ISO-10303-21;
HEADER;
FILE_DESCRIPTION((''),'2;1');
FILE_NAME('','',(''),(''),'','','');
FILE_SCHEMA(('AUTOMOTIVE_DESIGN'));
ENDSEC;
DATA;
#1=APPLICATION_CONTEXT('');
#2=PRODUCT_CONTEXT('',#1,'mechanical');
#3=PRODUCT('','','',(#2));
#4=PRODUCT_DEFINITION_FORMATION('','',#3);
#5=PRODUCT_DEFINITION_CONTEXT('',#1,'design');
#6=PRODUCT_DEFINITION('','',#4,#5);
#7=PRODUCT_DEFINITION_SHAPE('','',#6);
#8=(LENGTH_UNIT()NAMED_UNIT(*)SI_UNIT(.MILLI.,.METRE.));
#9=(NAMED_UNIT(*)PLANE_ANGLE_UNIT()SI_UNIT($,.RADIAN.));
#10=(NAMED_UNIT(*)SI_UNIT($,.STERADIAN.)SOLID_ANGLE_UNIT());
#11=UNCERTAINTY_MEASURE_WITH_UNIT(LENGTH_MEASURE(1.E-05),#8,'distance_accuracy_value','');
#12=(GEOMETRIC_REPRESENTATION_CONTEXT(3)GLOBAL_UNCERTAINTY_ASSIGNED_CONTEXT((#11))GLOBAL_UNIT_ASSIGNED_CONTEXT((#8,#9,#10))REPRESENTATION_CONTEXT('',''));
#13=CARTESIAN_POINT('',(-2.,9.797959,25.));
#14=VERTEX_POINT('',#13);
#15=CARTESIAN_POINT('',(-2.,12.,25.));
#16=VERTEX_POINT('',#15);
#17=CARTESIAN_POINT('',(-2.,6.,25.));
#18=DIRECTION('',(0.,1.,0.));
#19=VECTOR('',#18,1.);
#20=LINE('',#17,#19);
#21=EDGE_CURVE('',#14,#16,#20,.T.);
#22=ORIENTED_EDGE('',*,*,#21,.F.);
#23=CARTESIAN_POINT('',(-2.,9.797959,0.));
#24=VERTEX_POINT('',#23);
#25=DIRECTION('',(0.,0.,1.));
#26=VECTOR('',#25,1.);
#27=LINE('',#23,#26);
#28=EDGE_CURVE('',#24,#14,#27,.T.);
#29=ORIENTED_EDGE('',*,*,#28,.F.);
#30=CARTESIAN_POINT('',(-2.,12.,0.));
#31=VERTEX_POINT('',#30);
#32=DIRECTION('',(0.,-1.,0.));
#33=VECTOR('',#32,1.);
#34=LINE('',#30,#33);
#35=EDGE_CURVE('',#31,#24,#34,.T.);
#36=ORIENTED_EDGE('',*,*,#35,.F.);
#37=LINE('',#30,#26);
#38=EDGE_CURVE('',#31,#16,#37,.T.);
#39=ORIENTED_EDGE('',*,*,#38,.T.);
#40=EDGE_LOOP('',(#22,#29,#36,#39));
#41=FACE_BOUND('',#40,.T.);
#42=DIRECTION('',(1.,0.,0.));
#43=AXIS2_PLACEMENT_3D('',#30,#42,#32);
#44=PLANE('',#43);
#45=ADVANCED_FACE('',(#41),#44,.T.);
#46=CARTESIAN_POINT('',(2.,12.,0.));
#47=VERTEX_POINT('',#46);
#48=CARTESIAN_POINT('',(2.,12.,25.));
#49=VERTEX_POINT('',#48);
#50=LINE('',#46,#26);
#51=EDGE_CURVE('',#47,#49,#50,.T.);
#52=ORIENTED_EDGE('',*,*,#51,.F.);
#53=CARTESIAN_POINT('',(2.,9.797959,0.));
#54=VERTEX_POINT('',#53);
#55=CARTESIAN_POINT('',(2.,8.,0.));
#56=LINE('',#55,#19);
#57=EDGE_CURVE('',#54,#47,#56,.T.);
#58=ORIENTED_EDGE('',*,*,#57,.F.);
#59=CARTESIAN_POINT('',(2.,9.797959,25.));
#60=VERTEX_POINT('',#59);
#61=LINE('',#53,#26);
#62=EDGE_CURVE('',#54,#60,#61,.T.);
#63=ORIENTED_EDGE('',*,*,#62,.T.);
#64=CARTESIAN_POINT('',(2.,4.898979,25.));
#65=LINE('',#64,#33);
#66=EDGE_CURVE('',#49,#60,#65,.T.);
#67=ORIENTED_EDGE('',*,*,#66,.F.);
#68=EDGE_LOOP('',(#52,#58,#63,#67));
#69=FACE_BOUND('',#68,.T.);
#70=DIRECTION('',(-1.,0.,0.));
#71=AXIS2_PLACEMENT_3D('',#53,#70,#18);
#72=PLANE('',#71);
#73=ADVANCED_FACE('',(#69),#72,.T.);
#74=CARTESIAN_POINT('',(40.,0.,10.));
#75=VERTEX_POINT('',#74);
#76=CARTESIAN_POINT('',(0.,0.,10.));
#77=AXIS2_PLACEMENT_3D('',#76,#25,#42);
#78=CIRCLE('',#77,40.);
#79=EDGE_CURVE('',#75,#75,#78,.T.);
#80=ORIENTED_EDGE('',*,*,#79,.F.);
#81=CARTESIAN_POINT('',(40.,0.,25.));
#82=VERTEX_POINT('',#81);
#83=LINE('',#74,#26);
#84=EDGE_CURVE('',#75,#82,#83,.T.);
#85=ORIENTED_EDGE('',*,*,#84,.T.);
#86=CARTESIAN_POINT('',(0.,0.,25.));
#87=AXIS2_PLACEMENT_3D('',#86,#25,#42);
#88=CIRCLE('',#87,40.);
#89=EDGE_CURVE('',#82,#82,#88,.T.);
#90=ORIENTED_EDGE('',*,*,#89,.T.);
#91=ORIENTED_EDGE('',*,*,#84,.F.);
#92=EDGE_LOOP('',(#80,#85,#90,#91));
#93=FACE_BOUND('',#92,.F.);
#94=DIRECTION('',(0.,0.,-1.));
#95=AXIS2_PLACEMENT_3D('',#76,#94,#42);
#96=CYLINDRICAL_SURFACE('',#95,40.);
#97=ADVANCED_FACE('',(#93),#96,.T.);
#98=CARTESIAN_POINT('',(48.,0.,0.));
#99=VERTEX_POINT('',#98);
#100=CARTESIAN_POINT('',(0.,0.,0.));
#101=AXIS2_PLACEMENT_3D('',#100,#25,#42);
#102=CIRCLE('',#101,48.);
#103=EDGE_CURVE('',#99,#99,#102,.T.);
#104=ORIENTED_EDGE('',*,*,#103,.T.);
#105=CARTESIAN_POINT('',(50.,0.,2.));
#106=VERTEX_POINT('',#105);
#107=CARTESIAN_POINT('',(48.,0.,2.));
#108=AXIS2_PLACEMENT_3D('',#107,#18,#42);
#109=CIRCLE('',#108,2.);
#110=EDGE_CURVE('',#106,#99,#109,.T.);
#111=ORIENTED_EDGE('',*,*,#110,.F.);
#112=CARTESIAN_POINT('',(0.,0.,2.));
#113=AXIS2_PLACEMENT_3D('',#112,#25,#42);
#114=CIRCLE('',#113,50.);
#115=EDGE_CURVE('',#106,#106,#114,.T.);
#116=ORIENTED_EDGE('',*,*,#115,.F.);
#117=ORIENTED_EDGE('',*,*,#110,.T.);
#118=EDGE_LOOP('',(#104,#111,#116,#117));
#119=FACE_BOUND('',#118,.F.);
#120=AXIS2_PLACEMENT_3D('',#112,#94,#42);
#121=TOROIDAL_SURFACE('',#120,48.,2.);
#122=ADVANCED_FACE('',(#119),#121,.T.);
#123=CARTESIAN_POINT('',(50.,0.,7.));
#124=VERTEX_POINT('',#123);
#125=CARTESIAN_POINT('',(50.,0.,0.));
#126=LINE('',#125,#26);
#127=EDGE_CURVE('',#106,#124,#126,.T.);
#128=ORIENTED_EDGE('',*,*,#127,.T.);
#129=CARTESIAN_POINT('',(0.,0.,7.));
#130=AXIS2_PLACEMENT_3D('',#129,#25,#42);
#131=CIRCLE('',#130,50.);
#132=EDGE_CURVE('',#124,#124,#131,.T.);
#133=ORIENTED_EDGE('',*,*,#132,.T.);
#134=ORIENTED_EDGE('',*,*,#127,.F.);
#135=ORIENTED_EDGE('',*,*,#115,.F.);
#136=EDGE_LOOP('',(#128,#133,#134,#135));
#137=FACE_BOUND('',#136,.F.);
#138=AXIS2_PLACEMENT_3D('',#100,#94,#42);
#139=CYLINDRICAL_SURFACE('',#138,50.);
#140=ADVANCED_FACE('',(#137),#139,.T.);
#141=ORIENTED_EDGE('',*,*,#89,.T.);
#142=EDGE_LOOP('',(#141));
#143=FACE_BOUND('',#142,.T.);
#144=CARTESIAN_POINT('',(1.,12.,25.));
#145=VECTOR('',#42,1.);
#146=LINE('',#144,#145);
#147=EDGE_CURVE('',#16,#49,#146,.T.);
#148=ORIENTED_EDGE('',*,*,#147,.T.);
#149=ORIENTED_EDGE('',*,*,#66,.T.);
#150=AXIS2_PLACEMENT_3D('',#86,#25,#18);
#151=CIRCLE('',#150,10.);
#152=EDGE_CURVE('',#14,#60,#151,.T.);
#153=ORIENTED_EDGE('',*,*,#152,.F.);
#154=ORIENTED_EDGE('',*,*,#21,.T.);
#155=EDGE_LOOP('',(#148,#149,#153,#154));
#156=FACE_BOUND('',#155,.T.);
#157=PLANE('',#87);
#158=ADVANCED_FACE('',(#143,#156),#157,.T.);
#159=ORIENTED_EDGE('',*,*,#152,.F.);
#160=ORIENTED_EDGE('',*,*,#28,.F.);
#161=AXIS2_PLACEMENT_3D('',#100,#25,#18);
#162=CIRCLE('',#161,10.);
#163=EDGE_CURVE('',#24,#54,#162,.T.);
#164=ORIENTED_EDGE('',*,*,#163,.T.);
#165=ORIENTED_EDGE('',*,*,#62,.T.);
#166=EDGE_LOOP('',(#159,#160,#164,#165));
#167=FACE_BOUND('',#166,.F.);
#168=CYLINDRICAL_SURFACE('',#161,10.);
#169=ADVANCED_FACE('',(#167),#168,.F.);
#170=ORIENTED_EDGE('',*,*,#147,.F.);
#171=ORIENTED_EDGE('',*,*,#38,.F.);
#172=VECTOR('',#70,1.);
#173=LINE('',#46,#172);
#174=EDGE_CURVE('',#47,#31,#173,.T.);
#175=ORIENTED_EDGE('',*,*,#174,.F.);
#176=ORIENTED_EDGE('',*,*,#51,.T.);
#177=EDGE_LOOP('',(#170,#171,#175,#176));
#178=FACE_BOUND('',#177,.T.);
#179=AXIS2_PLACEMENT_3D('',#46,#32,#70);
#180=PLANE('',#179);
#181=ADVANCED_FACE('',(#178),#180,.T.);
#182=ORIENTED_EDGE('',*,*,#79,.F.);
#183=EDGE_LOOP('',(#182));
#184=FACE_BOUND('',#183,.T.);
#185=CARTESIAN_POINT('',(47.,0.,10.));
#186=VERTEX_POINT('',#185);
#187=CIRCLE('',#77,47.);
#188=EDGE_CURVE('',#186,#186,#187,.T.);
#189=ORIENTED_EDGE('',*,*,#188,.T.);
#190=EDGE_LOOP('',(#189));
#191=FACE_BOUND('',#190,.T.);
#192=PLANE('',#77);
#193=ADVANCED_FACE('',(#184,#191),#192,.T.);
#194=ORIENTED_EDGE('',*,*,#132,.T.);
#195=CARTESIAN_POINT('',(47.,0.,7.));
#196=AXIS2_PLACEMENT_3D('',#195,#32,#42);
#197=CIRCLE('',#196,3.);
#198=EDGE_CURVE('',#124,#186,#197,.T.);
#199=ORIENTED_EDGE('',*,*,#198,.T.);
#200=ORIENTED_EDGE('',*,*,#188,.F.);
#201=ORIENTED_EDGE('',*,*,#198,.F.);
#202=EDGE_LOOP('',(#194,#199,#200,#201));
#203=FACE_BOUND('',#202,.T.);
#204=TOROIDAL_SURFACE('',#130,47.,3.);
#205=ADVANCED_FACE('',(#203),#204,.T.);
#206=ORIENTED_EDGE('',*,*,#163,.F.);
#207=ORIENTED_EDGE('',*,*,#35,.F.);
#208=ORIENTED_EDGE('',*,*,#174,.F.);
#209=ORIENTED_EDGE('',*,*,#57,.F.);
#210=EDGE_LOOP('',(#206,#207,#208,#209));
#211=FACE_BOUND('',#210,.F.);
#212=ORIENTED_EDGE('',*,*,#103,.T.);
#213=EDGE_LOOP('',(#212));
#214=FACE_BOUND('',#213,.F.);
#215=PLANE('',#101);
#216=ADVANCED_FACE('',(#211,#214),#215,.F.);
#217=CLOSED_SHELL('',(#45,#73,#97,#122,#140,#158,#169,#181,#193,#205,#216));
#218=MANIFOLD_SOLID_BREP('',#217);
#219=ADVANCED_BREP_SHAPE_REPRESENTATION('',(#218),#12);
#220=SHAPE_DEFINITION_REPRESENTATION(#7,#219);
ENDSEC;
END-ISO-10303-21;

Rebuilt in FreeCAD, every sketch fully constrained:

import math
import FreeCAD as App
import Part
import Sketcher

V = App.Vector
Q = App.Units.Quantity


def edges_at(feature, points):
    """Names of the edges that pass closest to the given points."""
    edges = feature.Shape.Edges
    near = lambda p: min(range(len(edges)), key=lambda i: edges[i].distToShape(Part.Vertex(*p))[0])
    return sorted({f"Edge{near(p) + 1}" for p in points})

doc = App.newDocument("Part")
body = doc.addObject("PartDesign::Body", "Body")

# Sketch on XY plane
sketch1 = doc.addObject("Sketcher::SketchObject", "Sketch")
body.addObject(sketch1)
sketch1.AttachmentSupport = (doc.XY_Plane, [""])
sketch1.MapMode = "FlatFace"
sketch1.addGeometry(Part.Circle(V(0, 0, 0), V(0, 0, 1), 50), False)
sketch1.addConstraint([
    Sketcher.Constraint("Coincident", 0, 3, -1, 1),
    Sketcher.Constraint("Diameter", 0, Q("100 mm")),
])
pad1 = doc.addObject("PartDesign::Pad", "Pad")
body.addObject(pad1)
pad1.Profile = sketch1
pad1.Length = 10

# Sketch on XY plane
sketch2 = doc.addObject("Sketcher::SketchObject", "Sketch001")
body.addObject(sketch2)
sketch2.AttachmentSupport = (doc.XY_Plane, [""])
sketch2.MapMode = "FlatFace"
sketch2.AttachmentOffset = App.Placement(V(0, 0, 10), App.Rotation())
sketch2.addGeometry(Part.Circle(V(0, 0, 0), V(0, 0, 1), 40), False)
sketch2.addConstraint([
    Sketcher.Constraint("Coincident", 0, 3, -1, 1),
    Sketcher.Constraint("Diameter", 0, Q("80 mm")),
])
pad2 = doc.addObject("PartDesign::Pad", "Pad001")
body.addObject(pad2)
pad2.Profile = sketch2
pad2.Length = 15
doc.recompute()

fillet = doc.addObject("PartDesign::Fillet", "Fillet")
body.addObject(fillet)
fillet.Base = (pad2, edges_at(pad2, [(-50, 0, 10)]))
fillet.Radius = 3

# Sketch on XY plane
sketch3 = doc.addObject("Sketcher::SketchObject", "Sketch002")
body.addObject(sketch3)
sketch3.AttachmentSupport = (doc.XY_Plane, [""])
sketch3.MapMode = "FlatFace"
sketch3.addGeometry(Part.Circle(V(0, 0, 0), V(0, 0, 1), 10), False)
sketch3.addConstraint([
    Sketcher.Constraint("Coincident", 0, 3, -1, 1),
    Sketcher.Constraint("Diameter", 0, Q("20 mm")),
])
doc.recompute()
hole = doc.addObject("PartDesign::Hole", "Hole")
body.addObject(hole)
hole.Profile = sketch3
hole.ThreadType = "None"
hole.Diameter = 20
hole.DepthType = "ThroughAll"
hole.Reversed = True
doc.recompute()

fillet2 = doc.addObject("PartDesign::Fillet", "Fillet001")
body.addObject(fillet2)
fillet2.Base = (hole, edges_at(hole, [(-50, 0, 0)]))
fillet2.Radius = 2

# Sketch on XY plane
sketch4 = doc.addObject("Sketcher::SketchObject", "Sketch003")
body.addObject(sketch4)
sketch4.AttachmentSupport = (doc.XY_Plane, [""])
sketch4.MapMode = "FlatFace"
sketch4.addGeometry([
    Part.ArcOfCircle(Part.Circle(V(0, 0, 0), V(0, 0, 1), 10), math.radians(78), math.radians(102)),
    Part.LineSegment(V(-2, 9.8, 0), V(-2, 12, 0)),
    Part.LineSegment(V(-2, 12, 0), V(2, 12, 0)),
    Part.LineSegment(V(2, 12, 0), V(2, 9.8, 0)),
], False)
sketch4.addConstraint([
    Sketcher.Constraint("Coincident", 0, 2, 1, 1),
    Sketcher.Constraint("Coincident", 1, 2, 2, 1),
    Sketcher.Constraint("Coincident", 2, 2, 3, 1),
    Sketcher.Constraint("Coincident", 3, 2, 0, 1),
    Sketcher.Constraint("Vertical", 1),
    Sketcher.Constraint("Horizontal", 2),
    Sketcher.Constraint("Vertical", 3),
    Sketcher.Constraint("Coincident", 0, 3, -1, 1),
    Sketcher.Constraint("Horizontal", 0, 2, 3, 2),
    Sketcher.Constraint("DistanceX", 2, 1, 2, 2, Q("4 mm")),
    Sketcher.Constraint("DistanceY", -1, 1, 1, 2, Q("12 mm")),
    Sketcher.Constraint("Radius", 0, Q("10 mm")),
])
pocket1 = doc.addObject("PartDesign::Pocket", "Pocket")
body.addObject(pocket1)
pocket1.Profile = sketch4
pocket1.Type = "ThroughAll"
pocket1.Reversed = True

doc.recompute()
